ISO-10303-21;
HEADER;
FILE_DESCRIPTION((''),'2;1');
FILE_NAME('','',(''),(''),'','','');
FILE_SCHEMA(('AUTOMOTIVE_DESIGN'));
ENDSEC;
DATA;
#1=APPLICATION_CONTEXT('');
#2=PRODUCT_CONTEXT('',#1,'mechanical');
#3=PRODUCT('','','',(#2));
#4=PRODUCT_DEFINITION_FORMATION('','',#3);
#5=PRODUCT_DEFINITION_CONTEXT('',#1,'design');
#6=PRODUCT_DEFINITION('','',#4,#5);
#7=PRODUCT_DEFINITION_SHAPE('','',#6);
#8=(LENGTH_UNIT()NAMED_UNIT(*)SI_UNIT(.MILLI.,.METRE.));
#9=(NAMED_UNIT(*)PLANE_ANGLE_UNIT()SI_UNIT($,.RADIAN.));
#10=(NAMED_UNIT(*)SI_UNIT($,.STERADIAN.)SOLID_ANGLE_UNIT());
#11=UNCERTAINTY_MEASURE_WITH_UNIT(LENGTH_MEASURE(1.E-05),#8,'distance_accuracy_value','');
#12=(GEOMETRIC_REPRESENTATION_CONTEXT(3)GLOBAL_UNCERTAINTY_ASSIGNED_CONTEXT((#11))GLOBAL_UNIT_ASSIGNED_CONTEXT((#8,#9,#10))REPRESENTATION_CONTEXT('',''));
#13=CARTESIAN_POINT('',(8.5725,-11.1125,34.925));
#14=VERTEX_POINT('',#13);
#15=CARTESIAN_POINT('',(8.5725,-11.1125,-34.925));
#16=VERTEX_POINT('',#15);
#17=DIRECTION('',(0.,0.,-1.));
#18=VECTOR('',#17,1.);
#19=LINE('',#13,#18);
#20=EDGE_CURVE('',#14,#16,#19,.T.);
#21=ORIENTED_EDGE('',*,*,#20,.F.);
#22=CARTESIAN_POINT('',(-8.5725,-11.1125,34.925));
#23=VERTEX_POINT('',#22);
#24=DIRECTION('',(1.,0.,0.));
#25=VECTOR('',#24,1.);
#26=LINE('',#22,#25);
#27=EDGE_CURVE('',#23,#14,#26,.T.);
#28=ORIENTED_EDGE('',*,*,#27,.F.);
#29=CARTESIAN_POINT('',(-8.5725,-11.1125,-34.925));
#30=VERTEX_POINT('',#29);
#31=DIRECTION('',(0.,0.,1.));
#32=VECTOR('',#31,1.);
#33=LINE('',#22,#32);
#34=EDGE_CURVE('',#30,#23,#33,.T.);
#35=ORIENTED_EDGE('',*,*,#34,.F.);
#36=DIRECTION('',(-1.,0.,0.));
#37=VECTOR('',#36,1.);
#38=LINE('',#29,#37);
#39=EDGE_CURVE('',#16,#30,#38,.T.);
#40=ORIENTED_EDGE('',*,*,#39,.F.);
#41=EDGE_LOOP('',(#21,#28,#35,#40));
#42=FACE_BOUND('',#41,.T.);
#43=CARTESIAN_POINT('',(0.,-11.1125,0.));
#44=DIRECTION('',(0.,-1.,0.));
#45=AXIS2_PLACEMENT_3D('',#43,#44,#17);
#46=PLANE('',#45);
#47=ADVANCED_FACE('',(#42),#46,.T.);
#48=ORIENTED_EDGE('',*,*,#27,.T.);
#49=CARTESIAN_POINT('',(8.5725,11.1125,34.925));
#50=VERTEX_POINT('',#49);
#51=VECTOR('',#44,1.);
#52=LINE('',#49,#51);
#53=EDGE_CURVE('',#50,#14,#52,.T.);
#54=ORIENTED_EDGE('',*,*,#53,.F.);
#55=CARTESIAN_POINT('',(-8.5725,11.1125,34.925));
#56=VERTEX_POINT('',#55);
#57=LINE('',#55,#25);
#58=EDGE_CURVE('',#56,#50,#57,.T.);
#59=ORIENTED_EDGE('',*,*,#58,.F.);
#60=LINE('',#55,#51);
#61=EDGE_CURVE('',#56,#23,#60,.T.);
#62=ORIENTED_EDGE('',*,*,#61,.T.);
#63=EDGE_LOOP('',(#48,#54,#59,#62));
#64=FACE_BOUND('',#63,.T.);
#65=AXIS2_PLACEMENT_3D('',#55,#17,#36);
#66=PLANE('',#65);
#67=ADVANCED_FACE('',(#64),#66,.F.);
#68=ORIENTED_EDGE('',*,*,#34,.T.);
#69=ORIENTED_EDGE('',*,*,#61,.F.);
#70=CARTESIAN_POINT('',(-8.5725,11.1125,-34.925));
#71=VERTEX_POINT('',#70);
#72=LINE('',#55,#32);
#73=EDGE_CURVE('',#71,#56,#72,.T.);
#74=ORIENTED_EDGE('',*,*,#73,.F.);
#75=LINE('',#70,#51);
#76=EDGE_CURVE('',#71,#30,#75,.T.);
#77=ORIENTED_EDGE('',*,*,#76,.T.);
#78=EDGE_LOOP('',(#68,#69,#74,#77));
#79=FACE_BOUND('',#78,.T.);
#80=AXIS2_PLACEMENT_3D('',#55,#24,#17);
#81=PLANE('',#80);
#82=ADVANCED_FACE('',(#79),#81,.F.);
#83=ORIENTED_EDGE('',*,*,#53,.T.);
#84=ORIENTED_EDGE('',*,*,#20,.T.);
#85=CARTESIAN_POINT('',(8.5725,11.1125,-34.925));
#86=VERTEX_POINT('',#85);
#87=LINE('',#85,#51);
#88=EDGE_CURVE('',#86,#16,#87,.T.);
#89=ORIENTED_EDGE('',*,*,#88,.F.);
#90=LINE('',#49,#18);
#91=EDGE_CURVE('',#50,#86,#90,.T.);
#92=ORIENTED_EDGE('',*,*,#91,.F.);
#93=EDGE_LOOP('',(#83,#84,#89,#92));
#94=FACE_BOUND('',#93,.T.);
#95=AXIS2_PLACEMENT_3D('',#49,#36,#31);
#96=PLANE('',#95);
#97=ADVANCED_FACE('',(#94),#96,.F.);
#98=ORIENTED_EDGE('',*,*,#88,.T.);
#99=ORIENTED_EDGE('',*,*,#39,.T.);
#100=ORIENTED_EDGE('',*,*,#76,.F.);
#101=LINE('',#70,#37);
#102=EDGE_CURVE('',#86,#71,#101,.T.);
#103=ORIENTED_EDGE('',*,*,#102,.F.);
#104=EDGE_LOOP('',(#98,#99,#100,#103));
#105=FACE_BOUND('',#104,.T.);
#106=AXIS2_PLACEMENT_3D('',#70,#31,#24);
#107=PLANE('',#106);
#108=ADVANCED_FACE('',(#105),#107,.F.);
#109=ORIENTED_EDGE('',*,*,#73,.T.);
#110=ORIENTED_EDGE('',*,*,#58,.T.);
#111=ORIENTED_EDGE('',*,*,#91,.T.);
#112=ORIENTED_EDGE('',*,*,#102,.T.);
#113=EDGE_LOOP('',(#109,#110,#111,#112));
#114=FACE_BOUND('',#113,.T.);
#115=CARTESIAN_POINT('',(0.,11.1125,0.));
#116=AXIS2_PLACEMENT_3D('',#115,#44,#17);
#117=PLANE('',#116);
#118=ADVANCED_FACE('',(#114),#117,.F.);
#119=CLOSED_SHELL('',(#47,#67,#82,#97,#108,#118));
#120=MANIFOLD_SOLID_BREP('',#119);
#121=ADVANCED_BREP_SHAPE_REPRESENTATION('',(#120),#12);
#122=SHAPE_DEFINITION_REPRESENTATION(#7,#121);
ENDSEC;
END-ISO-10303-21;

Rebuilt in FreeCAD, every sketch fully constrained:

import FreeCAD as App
import Part
import Sketcher

V = App.Vector
Q = App.Units.Quantity


def add_polygon(sketch, points):
    """Adds a closed chain of lines whose ends are joined by coincident constraints."""
    first, n = sketch.GeometryCount, len(points)
    for a, b in zip(points, points[1:] + points[:1]):
        sketch.addGeometry(Part.LineSegment(App.Vector(*a, 0), App.Vector(*b, 0)), False)
    for i in range(n):
        sketch.addConstraint(Sketcher.Constraint("Coincident", first + i, 2, first + (i + 1) % n, 1))

doc = App.newDocument("Part")
body = doc.addObject("PartDesign::Body", "Body")

# Sketch on XZ plane
sketch1 = doc.addObject("Sketcher::SketchObject", "Sketch")
body.addObject(sketch1)
sketch1.AttachmentSupport = (doc.XZ_Plane, [""])
sketch1.MapMode = "FlatFace"
add_polygon(sketch1, [(-8.5725, -34.925), (-8.5725, 34.925), (8.5725, 34.925), (8.5725, -34.925)])  # lines 0-3
sketch1.addConstraint(Sketcher.Constraint("Vertical", 0))
sketch1.addConstraint(Sketcher.Constraint("Horizontal", 1))
sketch1.addConstraint(Sketcher.Constraint("Vertical", 2))
sketch1.addConstraint(Sketcher.Constraint("Horizontal", 3))
sketch1.addConstraint(Sketcher.Constraint("Symmetric", 0, 2, 2, 2, -1, 1))
sketch1.addConstraint(Sketcher.Constraint("DistanceY", 0, 1, 0, 2, Q("2.75 in")))
sketch1.addConstraint(Sketcher.Constraint("DistanceX", 1, 1, 1, 2, Q("0.675 in")))
pad1 = doc.addObject("PartDesign::Pad", "Pad")
body.addObject(pad1)
pad1.Profile = sketch1
pad1.Length = Q("0.875 in")
pad1.Midplane = True

doc.recompute()
